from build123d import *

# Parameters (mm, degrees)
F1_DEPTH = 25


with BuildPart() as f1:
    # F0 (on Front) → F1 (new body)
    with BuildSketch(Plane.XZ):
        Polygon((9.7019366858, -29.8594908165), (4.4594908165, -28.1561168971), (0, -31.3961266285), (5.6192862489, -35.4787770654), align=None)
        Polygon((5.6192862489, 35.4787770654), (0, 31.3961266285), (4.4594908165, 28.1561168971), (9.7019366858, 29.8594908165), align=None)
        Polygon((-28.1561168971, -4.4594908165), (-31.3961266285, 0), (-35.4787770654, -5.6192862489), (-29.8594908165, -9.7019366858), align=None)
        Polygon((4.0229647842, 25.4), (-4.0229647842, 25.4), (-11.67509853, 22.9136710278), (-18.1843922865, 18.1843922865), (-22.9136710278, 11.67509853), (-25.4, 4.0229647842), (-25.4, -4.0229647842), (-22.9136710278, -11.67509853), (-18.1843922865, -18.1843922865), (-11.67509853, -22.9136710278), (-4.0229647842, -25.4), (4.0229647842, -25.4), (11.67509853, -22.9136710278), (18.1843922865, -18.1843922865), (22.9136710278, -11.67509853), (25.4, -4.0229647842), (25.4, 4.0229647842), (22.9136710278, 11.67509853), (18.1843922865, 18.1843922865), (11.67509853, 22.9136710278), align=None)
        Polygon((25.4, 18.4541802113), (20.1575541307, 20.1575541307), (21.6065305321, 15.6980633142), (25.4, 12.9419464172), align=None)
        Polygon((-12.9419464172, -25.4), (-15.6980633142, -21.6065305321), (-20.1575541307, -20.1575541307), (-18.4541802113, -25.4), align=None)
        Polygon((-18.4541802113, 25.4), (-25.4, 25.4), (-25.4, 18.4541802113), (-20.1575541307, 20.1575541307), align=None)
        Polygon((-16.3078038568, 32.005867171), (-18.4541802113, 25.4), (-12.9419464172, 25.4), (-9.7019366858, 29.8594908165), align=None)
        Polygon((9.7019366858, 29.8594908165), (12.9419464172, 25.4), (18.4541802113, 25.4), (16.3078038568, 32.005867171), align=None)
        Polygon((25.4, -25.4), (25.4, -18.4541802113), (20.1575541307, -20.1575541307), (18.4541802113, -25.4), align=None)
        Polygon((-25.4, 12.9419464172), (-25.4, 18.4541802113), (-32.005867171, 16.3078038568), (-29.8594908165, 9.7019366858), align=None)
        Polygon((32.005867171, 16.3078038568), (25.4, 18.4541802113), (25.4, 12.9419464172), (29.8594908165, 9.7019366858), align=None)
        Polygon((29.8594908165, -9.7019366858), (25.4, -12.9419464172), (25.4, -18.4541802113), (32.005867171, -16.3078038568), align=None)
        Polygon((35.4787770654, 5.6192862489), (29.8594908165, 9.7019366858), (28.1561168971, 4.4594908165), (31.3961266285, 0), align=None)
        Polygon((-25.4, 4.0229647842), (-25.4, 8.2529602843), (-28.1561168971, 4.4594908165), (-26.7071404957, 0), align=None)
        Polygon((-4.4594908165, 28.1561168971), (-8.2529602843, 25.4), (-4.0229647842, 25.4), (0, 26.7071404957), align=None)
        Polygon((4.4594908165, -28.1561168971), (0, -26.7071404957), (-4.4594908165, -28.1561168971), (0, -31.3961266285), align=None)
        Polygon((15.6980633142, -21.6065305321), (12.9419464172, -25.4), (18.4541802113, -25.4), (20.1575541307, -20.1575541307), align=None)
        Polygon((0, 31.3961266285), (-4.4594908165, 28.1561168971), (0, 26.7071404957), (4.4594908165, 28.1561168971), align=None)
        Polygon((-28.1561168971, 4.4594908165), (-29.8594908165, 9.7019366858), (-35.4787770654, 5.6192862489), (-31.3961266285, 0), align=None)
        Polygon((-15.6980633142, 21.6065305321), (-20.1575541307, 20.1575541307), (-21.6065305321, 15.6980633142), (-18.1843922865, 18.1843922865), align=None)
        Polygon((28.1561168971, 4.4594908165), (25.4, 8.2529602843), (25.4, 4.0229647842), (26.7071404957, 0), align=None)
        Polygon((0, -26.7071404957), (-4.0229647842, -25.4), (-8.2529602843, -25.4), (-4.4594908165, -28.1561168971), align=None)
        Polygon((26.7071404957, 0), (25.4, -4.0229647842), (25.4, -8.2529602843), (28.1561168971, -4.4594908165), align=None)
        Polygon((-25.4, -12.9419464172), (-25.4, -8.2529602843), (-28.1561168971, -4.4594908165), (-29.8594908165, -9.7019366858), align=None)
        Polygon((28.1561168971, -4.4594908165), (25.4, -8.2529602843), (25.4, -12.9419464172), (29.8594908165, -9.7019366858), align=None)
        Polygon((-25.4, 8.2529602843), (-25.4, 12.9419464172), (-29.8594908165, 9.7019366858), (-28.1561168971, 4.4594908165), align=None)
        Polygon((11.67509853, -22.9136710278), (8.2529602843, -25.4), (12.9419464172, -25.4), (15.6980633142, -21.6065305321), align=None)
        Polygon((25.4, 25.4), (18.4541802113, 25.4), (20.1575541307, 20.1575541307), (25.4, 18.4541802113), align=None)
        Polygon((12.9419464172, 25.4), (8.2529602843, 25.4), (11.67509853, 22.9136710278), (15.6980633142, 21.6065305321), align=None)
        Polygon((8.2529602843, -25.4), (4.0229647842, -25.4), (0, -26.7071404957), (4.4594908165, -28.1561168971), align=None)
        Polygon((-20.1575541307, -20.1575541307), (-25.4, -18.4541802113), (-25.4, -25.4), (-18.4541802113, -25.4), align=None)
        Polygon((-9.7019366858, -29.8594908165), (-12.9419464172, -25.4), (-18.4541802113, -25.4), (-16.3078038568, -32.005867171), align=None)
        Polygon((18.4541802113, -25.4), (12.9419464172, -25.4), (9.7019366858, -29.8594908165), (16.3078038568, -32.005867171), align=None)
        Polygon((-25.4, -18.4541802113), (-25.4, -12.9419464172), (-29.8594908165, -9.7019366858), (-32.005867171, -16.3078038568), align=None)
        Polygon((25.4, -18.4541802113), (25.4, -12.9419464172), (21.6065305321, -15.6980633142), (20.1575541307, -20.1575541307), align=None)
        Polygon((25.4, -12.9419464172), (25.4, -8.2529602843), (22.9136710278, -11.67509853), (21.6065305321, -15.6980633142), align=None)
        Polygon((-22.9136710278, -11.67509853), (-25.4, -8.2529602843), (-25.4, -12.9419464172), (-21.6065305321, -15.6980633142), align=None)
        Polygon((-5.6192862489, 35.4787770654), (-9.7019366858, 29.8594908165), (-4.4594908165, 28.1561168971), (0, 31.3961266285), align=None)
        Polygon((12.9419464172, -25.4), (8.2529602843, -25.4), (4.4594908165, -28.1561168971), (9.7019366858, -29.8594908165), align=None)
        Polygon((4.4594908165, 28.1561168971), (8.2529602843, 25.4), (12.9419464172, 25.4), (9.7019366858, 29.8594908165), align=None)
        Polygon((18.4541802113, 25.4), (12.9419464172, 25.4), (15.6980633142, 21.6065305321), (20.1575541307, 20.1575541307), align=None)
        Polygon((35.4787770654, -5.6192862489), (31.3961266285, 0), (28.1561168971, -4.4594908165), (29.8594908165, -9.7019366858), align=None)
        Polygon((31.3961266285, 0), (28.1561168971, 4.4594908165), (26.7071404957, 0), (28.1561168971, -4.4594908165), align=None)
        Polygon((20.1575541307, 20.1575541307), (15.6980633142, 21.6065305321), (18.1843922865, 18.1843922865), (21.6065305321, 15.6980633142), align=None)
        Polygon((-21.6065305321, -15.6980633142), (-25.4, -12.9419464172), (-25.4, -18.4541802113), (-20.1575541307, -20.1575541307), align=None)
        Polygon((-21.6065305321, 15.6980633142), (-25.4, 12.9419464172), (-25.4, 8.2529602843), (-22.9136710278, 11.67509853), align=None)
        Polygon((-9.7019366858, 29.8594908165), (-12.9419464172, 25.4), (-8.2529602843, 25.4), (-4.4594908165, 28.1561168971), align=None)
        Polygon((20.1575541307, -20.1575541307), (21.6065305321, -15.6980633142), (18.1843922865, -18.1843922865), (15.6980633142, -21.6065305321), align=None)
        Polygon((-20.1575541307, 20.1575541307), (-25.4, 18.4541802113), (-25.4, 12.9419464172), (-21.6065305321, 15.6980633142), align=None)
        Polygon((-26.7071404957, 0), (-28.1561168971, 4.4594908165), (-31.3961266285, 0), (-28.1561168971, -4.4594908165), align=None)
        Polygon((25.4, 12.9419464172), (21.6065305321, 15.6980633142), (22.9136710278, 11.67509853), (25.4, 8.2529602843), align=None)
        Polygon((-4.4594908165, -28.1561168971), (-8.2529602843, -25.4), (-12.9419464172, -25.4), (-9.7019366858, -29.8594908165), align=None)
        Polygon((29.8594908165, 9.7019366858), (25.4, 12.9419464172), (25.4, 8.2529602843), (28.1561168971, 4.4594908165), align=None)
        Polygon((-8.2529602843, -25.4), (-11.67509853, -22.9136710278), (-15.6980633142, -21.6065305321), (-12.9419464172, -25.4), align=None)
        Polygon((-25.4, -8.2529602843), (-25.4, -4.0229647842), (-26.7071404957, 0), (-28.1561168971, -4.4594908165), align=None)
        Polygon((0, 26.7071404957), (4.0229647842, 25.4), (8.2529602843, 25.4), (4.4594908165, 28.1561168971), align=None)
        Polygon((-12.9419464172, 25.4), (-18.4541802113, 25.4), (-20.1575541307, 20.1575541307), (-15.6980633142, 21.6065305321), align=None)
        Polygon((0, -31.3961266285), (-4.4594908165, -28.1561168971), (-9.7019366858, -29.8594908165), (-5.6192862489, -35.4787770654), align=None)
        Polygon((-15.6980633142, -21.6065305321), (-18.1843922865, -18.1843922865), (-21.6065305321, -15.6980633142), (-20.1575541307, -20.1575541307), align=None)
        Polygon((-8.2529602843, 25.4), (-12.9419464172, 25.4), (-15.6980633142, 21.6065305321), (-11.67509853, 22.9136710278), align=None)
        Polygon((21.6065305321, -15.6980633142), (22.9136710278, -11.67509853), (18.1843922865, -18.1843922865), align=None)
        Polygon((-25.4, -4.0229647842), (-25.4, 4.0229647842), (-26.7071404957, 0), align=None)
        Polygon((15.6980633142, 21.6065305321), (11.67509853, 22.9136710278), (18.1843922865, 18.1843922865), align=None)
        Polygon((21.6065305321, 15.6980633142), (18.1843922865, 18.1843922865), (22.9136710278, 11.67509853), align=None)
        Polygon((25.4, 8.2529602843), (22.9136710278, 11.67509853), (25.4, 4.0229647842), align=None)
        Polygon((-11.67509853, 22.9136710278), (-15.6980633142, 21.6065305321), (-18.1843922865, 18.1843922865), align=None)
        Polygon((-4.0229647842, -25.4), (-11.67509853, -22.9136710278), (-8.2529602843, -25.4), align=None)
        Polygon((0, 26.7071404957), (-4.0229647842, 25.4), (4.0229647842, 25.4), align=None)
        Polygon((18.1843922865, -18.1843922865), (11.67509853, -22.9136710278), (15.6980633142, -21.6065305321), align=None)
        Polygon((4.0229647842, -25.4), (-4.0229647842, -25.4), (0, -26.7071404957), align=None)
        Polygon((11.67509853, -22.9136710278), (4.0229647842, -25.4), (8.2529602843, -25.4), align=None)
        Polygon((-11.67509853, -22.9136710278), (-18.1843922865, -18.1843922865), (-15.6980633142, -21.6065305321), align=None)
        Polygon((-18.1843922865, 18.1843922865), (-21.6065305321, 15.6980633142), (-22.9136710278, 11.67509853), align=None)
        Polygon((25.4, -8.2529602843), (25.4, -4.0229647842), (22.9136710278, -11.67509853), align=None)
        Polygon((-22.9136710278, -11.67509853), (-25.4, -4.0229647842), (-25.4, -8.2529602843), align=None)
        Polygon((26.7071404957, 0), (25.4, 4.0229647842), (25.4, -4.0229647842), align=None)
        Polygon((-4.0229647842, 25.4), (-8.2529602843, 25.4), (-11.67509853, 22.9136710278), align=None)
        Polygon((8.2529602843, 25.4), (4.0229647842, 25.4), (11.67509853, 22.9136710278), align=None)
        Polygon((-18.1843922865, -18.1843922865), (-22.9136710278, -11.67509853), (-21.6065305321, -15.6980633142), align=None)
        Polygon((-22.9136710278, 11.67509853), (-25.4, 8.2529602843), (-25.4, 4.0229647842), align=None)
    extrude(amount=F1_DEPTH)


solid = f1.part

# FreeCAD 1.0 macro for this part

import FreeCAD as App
import Part
import Sketcher

V = App.Vector
Q = App.Units.Quantity

doc = App.newDocument("Part")
body = doc.addObject("PartDesign::Body", "Body")

# Sketch on XZ plane
sketch1 = body.newObject("Sketcher::SketchObject", "Sketch")
sketch1.AttachmentSupport = (doc.getObject("XZ_Plane"), [""])
sketch1.MapMode = "FlatFace"
sketch1.addGeometry([
    Part.LineSegment(V(-16, 32, 0), V(-18, 25, 0)),  # 0
    Part.LineSegment(V(-18, 25, 0), V(-25, 25, 0)),  # 1
    Part.LineSegment(V(-25, 25, 0), V(-25, 18, 0)),  # 2
    Part.LineSegment(V(-25, 18, 0), V(-32, 16, 0)),  # 3
    Part.LineSegment(V(-32, 16, 0), V(-30, 10, 0)),  # 4
    Part.LineSegment(V(-30, 10, 0), V(-35, 6, 0)),  # 5
    Part.LineSegment(V(-35, 6, 0), V(-31, 0, 0)),  # 6
    Part.LineSegment(V(-31, 0, 0), V(-35, -6, 0)),  # 7
    Part.LineSegment(V(-35, -6, 0), V(-30, -10, 0)),  # 8
    Part.LineSegment(V(-30, -10, 0), V(-32, -16, 0)),  # 9
    Part.LineSegment(V(-32, -16, 0), V(-25, -18, 0)),  # 10
    Part.LineSegment(V(-25, -18, 0), V(-25, -25, 0)),  # 11
    Part.LineSegment(V(-25, -25, 0), V(-18, -25, 0)),  # 12
    Part.LineSegment(V(-18, -25, 0), V(-16, -32, 0)),  # 13
    Part.LineSegment(V(-16, -32, 0), V(-10, -30, 0)),  # 14
    Part.LineSegment(V(-10, -30, 0), V(-6, -35, 0)),  # 15
    Part.LineSegment(V(-6, -35, 0), V(0, -31, 0)),  # 16
    Part.LineSegment(V(0, -31, 0), V(6, -35, 0)),  # 17
    Part.LineSegment(V(6, -35, 0), V(10, -30, 0)),  # 18
    Part.LineSegment(V(10, -30, 0), V(16, -32, 0)),  # 19
    Part.LineSegment(V(16, -32, 0), V(18, -25, 0)),  # 20
    Part.LineSegment(V(18, -25, 0), V(25, -25, 0)),  # 21
    Part.LineSegment(V(25, -25, 0), V(25, -18, 0)),  # 22
    Part.LineSegment(V(25, -18, 0), V(32, -16, 0)),  # 23
    Part.LineSegment(V(32, -16, 0), V(30, -10, 0)),  # 24
    Part.LineSegment(V(30, -10, 0), V(35, -6, 0)),  # 25
    Part.LineSegment(V(35, -6, 0), V(31, 0, 0)),  # 26
    Part.LineSegment(V(31, 0, 0), V(35, 6, 0)),  # 27
    Part.LineSegment(V(35, 6, 0), V(30, 10, 0)),  # 28
    Part.LineSegment(V(30, 10, 0), V(32, 16, 0)),  # 29
    Part.LineSegment(V(32, 16, 0), V(25, 18, 0)),  # 30
    Part.LineSegment(V(25, 18, 0), V(25, 25, 0)),  # 31
    Part.LineSegment(V(25, 25, 0), V(18, 25, 0)),  # 32
    Part.LineSegment(V(18, 25, 0), V(16, 32, 0)),  # 33
    Part.LineSegment(V(16, 32, 0), V(10, 30, 0)),  # 34
    Part.LineSegment(V(10, 30, 0), V(6, 35, 0)),  # 35
    Part.LineSegment(V(6, 35, 0), V(0, 31, 0)),  # 36
    Part.LineSegment(V(0, 31, 0), V(-6, 35, 0)),  # 37
    Part.LineSegment(V(-6, 35, 0), V(-10, 30, 0)),  # 38
    Part.LineSegment(V(-10, 30, 0), V(-16, 32, 0)),  # 39
], False)
sketch1.addConstraint([
    Sketcher.Constraint("Coincident", 0, 2, 1, 1),
    Sketcher.Constraint("Coincident", 1, 2, 2, 1),
    Sketcher.Constraint("Coincident", 2, 2, 3, 1),
    Sketcher.Constraint("Coincident", 3, 2, 4, 1),
    Sketcher.Constraint("Coincident", 4, 2, 5, 1),
    Sketcher.Constraint("Coincident", 5, 2, 6, 1),
    Sketcher.Constraint("Coincident", 6, 2, 7, 1),
    Sketcher.Constraint("Coincident", 7, 2, 8, 1),
    Sketcher.Constraint("Coincident", 8, 2, 9, 1),
    Sketcher.Constraint("Coincident", 9, 2, 10, 1),
    Sketcher.Constraint("Coincident", 10, 2, 11, 1),
    Sketcher.Constraint("Coincident", 11, 2, 12, 1),
    Sketcher.Constraint("Coincident", 12, 2, 13, 1),
    Sketcher.Constraint("Coincident", 13, 2, 14, 1),
    Sketcher.Constraint("Coincident", 14, 2, 15, 1),
    Sketcher.Constraint("Coincident", 15, 2, 16, 1),
    Sketcher.Constraint("Coincident", 16, 2, 17, 1),
    Sketcher.Constraint("Coincident", 17, 2, 18, 1),
    Sketcher.Constraint("Coincident", 18, 2, 19, 1),
    Sketcher.Constraint("Coincident", 19, 2, 20, 1),
    Sketcher.Constraint("Coincident", 20, 2, 21, 1),
    Sketcher.Constraint("Coincident", 21, 2, 22, 1),
    Sketcher.Constraint("Coincident", 22, 2, 23, 1),
    Sketcher.Constraint("Coincident", 23, 2, 24, 1),
    Sketcher.Constraint("Coincident", 24, 2, 25, 1),
    Sketcher.Constraint("Coincident", 25, 2, 26, 1),
    Sketcher.Constraint("Coincident", 26, 2, 27, 1),
    Sketcher.Constraint("Coincident", 27, 2, 28, 1),
    Sketcher.Constraint("Coincident", 28, 2, 29, 1),
    Sketcher.Constraint("Coincident", 29, 2, 30, 1),
    Sketcher.Constraint("Coincident", 30, 2, 31, 1),
    Sketcher.Constraint("Coincident", 31, 2, 32, 1),
    Sketcher.Constraint("Coincident", 32, 2, 33, 1),
    Sketcher.Constraint("Coincident", 33, 2, 34, 1),
    Sketcher.Constraint("Coincident", 34, 2, 35, 1),
    Sketcher.Constraint("Coincident", 35, 2, 36, 1),
    Sketcher.Constraint("Coincident", 36, 2, 37, 1),
    Sketcher.Constraint("Coincident", 37, 2, 38, 1),
    Sketcher.Constraint("Coincident", 38, 2, 39, 1),
    Sketcher.Constraint("Coincident", 39, 2, 0, 1),
    Sketcher.Constraint("Horizontal", 1),
    Sketcher.Constraint("Vertical", 2),
    Sketcher.Constraint("Vertical", 11),
    Sketcher.Constraint("Horizontal", 12),
    Sketcher.Constraint("Horizontal", 21),
    Sketcher.Constraint("Vertical", 22),
    Sketcher.Constraint("Vertical", 31),
    Sketcher.Constraint("Horizontal", 32),
    Sketcher.Constraint("Symmetric", 0, 2, 20, 2, -1, 1),
    Sketcher.Constraint("Symmetric", 2, 2, 22, 2, -1, 1),
    Sketcher.Constraint("Symmetric", 3, 2, 23, 2, -1, 1),
    Sketcher.Constraint("Symmetric", 4, 2, 24, 2, -1, 1),
    Sketcher.Constraint("Symmetric", 5, 2, 25, 2, -1, 1),
    Sketcher.Constraint("Symmetric", 6, 2, 26, 2, -1, 1),
    Sketcher.Constraint("Symmetric", 7, 2, 27, 2, -1, 1),
    Sketcher.Constraint("Symmetric", 8, 2, 28, 2, -1, 1),
    Sketcher.Constraint("Symmetric", 9, 2, 29, 2, -1, 1),
    Sketcher.Constraint("Symmetric", 10, 2, 30, 2, -1, 1),
    Sketcher.Constraint("Symmetric", 12, 2, 32, 2, -1, 1),
    Sketcher.Constraint("Symmetric", 13, 2, 33, 2, -1, 1),
    Sketcher.Constraint("Symmetric", 14, 2, 34, 2, -1, 1),
    Sketcher.Constraint("Symmetric", 15, 2, 35, 2, -1, 1),
    Sketcher.Constraint("Symmetric", 16, 2, 36, 2, -1, 1),
    Sketcher.Constraint("Symmetric", 17, 2, 37, 2, -1, 1),
    Sketcher.Constraint("Symmetric", 18, 2, 38, 2, -1, 1),
    Sketcher.Constraint("Symmetric", 19, 2, 39, 2, -1, 1),
    Sketcher.Constraint("Symmetric", 15, 2, 17, 2, -2),
    Sketcher.Constraint("Symmetric", 14, 2, 18, 2, -2),
    Sketcher.Constraint("Symmetric", 13, 2, 19, 2, -2),
    Sketcher.Constraint("Symmetric", 12, 2, 20, 2, -2),
    Sketcher.Constraint("Symmetric", 10, 2, 22, 2, -2),
    Sketcher.Constraint("Symmetric", 9, 2, 23, 2, -2),
    Sketcher.Constraint("Symmetric", 8, 2, 24, 2, -2),
    Sketcher.Constraint("Symmetric", 7, 2, 25, 2, -2),
    Sketcher.Constraint("PointOnObject", 6, 2, -1),
    Sketcher.Constraint("PointOnObject", 16, 2, -2),
    Sketcher.Constraint("Perpendicular", 3, 4),
    Sketcher.Constraint("Perpendicular", 5, 6),
    Sketcher.Constraint("Parallel", 0, 9),
    Sketcher.Constraint("Perpendicular", 13, 14),
    Sketcher.Constraint("Parallel", 6, 15),
    Sketcher.Constraint("Perpendicular", 15, 16),
    Sketcher.Constraint("Equal", 32, 2),
    Sketcher.Constraint("Equal", 0, 3),
    Sketcher.Constraint("Equal", 3, 4),
    Sketcher.Constraint("Equal", 4, 5),
    Sketcher.Constraint("Equal", 5, 6),
    Sketcher.Constraint("Equal", 13, 14),
    Sketcher.Constraint("Equal", 14, 15),
    Sketcher.Constraint("Equal", 15, 16),
    Sketcher.Constraint("Angle", 0, Q("-108 deg")),
    Sketcher.Constraint("Angle", 5, Q("-144 deg")),
    Sketcher.Constraint("DistanceY", -1, 1, 0, 2, Q("25.4 mm")),
    Sketcher.Constraint("DistanceX", 1, 2, 1, 1, Q("6.94582 mm")),
])
pad1 = body.newObject("PartDesign::Pad", "Pad")
pad1.Profile = sketch1
pad1.Length = 25

doc.recompute()
